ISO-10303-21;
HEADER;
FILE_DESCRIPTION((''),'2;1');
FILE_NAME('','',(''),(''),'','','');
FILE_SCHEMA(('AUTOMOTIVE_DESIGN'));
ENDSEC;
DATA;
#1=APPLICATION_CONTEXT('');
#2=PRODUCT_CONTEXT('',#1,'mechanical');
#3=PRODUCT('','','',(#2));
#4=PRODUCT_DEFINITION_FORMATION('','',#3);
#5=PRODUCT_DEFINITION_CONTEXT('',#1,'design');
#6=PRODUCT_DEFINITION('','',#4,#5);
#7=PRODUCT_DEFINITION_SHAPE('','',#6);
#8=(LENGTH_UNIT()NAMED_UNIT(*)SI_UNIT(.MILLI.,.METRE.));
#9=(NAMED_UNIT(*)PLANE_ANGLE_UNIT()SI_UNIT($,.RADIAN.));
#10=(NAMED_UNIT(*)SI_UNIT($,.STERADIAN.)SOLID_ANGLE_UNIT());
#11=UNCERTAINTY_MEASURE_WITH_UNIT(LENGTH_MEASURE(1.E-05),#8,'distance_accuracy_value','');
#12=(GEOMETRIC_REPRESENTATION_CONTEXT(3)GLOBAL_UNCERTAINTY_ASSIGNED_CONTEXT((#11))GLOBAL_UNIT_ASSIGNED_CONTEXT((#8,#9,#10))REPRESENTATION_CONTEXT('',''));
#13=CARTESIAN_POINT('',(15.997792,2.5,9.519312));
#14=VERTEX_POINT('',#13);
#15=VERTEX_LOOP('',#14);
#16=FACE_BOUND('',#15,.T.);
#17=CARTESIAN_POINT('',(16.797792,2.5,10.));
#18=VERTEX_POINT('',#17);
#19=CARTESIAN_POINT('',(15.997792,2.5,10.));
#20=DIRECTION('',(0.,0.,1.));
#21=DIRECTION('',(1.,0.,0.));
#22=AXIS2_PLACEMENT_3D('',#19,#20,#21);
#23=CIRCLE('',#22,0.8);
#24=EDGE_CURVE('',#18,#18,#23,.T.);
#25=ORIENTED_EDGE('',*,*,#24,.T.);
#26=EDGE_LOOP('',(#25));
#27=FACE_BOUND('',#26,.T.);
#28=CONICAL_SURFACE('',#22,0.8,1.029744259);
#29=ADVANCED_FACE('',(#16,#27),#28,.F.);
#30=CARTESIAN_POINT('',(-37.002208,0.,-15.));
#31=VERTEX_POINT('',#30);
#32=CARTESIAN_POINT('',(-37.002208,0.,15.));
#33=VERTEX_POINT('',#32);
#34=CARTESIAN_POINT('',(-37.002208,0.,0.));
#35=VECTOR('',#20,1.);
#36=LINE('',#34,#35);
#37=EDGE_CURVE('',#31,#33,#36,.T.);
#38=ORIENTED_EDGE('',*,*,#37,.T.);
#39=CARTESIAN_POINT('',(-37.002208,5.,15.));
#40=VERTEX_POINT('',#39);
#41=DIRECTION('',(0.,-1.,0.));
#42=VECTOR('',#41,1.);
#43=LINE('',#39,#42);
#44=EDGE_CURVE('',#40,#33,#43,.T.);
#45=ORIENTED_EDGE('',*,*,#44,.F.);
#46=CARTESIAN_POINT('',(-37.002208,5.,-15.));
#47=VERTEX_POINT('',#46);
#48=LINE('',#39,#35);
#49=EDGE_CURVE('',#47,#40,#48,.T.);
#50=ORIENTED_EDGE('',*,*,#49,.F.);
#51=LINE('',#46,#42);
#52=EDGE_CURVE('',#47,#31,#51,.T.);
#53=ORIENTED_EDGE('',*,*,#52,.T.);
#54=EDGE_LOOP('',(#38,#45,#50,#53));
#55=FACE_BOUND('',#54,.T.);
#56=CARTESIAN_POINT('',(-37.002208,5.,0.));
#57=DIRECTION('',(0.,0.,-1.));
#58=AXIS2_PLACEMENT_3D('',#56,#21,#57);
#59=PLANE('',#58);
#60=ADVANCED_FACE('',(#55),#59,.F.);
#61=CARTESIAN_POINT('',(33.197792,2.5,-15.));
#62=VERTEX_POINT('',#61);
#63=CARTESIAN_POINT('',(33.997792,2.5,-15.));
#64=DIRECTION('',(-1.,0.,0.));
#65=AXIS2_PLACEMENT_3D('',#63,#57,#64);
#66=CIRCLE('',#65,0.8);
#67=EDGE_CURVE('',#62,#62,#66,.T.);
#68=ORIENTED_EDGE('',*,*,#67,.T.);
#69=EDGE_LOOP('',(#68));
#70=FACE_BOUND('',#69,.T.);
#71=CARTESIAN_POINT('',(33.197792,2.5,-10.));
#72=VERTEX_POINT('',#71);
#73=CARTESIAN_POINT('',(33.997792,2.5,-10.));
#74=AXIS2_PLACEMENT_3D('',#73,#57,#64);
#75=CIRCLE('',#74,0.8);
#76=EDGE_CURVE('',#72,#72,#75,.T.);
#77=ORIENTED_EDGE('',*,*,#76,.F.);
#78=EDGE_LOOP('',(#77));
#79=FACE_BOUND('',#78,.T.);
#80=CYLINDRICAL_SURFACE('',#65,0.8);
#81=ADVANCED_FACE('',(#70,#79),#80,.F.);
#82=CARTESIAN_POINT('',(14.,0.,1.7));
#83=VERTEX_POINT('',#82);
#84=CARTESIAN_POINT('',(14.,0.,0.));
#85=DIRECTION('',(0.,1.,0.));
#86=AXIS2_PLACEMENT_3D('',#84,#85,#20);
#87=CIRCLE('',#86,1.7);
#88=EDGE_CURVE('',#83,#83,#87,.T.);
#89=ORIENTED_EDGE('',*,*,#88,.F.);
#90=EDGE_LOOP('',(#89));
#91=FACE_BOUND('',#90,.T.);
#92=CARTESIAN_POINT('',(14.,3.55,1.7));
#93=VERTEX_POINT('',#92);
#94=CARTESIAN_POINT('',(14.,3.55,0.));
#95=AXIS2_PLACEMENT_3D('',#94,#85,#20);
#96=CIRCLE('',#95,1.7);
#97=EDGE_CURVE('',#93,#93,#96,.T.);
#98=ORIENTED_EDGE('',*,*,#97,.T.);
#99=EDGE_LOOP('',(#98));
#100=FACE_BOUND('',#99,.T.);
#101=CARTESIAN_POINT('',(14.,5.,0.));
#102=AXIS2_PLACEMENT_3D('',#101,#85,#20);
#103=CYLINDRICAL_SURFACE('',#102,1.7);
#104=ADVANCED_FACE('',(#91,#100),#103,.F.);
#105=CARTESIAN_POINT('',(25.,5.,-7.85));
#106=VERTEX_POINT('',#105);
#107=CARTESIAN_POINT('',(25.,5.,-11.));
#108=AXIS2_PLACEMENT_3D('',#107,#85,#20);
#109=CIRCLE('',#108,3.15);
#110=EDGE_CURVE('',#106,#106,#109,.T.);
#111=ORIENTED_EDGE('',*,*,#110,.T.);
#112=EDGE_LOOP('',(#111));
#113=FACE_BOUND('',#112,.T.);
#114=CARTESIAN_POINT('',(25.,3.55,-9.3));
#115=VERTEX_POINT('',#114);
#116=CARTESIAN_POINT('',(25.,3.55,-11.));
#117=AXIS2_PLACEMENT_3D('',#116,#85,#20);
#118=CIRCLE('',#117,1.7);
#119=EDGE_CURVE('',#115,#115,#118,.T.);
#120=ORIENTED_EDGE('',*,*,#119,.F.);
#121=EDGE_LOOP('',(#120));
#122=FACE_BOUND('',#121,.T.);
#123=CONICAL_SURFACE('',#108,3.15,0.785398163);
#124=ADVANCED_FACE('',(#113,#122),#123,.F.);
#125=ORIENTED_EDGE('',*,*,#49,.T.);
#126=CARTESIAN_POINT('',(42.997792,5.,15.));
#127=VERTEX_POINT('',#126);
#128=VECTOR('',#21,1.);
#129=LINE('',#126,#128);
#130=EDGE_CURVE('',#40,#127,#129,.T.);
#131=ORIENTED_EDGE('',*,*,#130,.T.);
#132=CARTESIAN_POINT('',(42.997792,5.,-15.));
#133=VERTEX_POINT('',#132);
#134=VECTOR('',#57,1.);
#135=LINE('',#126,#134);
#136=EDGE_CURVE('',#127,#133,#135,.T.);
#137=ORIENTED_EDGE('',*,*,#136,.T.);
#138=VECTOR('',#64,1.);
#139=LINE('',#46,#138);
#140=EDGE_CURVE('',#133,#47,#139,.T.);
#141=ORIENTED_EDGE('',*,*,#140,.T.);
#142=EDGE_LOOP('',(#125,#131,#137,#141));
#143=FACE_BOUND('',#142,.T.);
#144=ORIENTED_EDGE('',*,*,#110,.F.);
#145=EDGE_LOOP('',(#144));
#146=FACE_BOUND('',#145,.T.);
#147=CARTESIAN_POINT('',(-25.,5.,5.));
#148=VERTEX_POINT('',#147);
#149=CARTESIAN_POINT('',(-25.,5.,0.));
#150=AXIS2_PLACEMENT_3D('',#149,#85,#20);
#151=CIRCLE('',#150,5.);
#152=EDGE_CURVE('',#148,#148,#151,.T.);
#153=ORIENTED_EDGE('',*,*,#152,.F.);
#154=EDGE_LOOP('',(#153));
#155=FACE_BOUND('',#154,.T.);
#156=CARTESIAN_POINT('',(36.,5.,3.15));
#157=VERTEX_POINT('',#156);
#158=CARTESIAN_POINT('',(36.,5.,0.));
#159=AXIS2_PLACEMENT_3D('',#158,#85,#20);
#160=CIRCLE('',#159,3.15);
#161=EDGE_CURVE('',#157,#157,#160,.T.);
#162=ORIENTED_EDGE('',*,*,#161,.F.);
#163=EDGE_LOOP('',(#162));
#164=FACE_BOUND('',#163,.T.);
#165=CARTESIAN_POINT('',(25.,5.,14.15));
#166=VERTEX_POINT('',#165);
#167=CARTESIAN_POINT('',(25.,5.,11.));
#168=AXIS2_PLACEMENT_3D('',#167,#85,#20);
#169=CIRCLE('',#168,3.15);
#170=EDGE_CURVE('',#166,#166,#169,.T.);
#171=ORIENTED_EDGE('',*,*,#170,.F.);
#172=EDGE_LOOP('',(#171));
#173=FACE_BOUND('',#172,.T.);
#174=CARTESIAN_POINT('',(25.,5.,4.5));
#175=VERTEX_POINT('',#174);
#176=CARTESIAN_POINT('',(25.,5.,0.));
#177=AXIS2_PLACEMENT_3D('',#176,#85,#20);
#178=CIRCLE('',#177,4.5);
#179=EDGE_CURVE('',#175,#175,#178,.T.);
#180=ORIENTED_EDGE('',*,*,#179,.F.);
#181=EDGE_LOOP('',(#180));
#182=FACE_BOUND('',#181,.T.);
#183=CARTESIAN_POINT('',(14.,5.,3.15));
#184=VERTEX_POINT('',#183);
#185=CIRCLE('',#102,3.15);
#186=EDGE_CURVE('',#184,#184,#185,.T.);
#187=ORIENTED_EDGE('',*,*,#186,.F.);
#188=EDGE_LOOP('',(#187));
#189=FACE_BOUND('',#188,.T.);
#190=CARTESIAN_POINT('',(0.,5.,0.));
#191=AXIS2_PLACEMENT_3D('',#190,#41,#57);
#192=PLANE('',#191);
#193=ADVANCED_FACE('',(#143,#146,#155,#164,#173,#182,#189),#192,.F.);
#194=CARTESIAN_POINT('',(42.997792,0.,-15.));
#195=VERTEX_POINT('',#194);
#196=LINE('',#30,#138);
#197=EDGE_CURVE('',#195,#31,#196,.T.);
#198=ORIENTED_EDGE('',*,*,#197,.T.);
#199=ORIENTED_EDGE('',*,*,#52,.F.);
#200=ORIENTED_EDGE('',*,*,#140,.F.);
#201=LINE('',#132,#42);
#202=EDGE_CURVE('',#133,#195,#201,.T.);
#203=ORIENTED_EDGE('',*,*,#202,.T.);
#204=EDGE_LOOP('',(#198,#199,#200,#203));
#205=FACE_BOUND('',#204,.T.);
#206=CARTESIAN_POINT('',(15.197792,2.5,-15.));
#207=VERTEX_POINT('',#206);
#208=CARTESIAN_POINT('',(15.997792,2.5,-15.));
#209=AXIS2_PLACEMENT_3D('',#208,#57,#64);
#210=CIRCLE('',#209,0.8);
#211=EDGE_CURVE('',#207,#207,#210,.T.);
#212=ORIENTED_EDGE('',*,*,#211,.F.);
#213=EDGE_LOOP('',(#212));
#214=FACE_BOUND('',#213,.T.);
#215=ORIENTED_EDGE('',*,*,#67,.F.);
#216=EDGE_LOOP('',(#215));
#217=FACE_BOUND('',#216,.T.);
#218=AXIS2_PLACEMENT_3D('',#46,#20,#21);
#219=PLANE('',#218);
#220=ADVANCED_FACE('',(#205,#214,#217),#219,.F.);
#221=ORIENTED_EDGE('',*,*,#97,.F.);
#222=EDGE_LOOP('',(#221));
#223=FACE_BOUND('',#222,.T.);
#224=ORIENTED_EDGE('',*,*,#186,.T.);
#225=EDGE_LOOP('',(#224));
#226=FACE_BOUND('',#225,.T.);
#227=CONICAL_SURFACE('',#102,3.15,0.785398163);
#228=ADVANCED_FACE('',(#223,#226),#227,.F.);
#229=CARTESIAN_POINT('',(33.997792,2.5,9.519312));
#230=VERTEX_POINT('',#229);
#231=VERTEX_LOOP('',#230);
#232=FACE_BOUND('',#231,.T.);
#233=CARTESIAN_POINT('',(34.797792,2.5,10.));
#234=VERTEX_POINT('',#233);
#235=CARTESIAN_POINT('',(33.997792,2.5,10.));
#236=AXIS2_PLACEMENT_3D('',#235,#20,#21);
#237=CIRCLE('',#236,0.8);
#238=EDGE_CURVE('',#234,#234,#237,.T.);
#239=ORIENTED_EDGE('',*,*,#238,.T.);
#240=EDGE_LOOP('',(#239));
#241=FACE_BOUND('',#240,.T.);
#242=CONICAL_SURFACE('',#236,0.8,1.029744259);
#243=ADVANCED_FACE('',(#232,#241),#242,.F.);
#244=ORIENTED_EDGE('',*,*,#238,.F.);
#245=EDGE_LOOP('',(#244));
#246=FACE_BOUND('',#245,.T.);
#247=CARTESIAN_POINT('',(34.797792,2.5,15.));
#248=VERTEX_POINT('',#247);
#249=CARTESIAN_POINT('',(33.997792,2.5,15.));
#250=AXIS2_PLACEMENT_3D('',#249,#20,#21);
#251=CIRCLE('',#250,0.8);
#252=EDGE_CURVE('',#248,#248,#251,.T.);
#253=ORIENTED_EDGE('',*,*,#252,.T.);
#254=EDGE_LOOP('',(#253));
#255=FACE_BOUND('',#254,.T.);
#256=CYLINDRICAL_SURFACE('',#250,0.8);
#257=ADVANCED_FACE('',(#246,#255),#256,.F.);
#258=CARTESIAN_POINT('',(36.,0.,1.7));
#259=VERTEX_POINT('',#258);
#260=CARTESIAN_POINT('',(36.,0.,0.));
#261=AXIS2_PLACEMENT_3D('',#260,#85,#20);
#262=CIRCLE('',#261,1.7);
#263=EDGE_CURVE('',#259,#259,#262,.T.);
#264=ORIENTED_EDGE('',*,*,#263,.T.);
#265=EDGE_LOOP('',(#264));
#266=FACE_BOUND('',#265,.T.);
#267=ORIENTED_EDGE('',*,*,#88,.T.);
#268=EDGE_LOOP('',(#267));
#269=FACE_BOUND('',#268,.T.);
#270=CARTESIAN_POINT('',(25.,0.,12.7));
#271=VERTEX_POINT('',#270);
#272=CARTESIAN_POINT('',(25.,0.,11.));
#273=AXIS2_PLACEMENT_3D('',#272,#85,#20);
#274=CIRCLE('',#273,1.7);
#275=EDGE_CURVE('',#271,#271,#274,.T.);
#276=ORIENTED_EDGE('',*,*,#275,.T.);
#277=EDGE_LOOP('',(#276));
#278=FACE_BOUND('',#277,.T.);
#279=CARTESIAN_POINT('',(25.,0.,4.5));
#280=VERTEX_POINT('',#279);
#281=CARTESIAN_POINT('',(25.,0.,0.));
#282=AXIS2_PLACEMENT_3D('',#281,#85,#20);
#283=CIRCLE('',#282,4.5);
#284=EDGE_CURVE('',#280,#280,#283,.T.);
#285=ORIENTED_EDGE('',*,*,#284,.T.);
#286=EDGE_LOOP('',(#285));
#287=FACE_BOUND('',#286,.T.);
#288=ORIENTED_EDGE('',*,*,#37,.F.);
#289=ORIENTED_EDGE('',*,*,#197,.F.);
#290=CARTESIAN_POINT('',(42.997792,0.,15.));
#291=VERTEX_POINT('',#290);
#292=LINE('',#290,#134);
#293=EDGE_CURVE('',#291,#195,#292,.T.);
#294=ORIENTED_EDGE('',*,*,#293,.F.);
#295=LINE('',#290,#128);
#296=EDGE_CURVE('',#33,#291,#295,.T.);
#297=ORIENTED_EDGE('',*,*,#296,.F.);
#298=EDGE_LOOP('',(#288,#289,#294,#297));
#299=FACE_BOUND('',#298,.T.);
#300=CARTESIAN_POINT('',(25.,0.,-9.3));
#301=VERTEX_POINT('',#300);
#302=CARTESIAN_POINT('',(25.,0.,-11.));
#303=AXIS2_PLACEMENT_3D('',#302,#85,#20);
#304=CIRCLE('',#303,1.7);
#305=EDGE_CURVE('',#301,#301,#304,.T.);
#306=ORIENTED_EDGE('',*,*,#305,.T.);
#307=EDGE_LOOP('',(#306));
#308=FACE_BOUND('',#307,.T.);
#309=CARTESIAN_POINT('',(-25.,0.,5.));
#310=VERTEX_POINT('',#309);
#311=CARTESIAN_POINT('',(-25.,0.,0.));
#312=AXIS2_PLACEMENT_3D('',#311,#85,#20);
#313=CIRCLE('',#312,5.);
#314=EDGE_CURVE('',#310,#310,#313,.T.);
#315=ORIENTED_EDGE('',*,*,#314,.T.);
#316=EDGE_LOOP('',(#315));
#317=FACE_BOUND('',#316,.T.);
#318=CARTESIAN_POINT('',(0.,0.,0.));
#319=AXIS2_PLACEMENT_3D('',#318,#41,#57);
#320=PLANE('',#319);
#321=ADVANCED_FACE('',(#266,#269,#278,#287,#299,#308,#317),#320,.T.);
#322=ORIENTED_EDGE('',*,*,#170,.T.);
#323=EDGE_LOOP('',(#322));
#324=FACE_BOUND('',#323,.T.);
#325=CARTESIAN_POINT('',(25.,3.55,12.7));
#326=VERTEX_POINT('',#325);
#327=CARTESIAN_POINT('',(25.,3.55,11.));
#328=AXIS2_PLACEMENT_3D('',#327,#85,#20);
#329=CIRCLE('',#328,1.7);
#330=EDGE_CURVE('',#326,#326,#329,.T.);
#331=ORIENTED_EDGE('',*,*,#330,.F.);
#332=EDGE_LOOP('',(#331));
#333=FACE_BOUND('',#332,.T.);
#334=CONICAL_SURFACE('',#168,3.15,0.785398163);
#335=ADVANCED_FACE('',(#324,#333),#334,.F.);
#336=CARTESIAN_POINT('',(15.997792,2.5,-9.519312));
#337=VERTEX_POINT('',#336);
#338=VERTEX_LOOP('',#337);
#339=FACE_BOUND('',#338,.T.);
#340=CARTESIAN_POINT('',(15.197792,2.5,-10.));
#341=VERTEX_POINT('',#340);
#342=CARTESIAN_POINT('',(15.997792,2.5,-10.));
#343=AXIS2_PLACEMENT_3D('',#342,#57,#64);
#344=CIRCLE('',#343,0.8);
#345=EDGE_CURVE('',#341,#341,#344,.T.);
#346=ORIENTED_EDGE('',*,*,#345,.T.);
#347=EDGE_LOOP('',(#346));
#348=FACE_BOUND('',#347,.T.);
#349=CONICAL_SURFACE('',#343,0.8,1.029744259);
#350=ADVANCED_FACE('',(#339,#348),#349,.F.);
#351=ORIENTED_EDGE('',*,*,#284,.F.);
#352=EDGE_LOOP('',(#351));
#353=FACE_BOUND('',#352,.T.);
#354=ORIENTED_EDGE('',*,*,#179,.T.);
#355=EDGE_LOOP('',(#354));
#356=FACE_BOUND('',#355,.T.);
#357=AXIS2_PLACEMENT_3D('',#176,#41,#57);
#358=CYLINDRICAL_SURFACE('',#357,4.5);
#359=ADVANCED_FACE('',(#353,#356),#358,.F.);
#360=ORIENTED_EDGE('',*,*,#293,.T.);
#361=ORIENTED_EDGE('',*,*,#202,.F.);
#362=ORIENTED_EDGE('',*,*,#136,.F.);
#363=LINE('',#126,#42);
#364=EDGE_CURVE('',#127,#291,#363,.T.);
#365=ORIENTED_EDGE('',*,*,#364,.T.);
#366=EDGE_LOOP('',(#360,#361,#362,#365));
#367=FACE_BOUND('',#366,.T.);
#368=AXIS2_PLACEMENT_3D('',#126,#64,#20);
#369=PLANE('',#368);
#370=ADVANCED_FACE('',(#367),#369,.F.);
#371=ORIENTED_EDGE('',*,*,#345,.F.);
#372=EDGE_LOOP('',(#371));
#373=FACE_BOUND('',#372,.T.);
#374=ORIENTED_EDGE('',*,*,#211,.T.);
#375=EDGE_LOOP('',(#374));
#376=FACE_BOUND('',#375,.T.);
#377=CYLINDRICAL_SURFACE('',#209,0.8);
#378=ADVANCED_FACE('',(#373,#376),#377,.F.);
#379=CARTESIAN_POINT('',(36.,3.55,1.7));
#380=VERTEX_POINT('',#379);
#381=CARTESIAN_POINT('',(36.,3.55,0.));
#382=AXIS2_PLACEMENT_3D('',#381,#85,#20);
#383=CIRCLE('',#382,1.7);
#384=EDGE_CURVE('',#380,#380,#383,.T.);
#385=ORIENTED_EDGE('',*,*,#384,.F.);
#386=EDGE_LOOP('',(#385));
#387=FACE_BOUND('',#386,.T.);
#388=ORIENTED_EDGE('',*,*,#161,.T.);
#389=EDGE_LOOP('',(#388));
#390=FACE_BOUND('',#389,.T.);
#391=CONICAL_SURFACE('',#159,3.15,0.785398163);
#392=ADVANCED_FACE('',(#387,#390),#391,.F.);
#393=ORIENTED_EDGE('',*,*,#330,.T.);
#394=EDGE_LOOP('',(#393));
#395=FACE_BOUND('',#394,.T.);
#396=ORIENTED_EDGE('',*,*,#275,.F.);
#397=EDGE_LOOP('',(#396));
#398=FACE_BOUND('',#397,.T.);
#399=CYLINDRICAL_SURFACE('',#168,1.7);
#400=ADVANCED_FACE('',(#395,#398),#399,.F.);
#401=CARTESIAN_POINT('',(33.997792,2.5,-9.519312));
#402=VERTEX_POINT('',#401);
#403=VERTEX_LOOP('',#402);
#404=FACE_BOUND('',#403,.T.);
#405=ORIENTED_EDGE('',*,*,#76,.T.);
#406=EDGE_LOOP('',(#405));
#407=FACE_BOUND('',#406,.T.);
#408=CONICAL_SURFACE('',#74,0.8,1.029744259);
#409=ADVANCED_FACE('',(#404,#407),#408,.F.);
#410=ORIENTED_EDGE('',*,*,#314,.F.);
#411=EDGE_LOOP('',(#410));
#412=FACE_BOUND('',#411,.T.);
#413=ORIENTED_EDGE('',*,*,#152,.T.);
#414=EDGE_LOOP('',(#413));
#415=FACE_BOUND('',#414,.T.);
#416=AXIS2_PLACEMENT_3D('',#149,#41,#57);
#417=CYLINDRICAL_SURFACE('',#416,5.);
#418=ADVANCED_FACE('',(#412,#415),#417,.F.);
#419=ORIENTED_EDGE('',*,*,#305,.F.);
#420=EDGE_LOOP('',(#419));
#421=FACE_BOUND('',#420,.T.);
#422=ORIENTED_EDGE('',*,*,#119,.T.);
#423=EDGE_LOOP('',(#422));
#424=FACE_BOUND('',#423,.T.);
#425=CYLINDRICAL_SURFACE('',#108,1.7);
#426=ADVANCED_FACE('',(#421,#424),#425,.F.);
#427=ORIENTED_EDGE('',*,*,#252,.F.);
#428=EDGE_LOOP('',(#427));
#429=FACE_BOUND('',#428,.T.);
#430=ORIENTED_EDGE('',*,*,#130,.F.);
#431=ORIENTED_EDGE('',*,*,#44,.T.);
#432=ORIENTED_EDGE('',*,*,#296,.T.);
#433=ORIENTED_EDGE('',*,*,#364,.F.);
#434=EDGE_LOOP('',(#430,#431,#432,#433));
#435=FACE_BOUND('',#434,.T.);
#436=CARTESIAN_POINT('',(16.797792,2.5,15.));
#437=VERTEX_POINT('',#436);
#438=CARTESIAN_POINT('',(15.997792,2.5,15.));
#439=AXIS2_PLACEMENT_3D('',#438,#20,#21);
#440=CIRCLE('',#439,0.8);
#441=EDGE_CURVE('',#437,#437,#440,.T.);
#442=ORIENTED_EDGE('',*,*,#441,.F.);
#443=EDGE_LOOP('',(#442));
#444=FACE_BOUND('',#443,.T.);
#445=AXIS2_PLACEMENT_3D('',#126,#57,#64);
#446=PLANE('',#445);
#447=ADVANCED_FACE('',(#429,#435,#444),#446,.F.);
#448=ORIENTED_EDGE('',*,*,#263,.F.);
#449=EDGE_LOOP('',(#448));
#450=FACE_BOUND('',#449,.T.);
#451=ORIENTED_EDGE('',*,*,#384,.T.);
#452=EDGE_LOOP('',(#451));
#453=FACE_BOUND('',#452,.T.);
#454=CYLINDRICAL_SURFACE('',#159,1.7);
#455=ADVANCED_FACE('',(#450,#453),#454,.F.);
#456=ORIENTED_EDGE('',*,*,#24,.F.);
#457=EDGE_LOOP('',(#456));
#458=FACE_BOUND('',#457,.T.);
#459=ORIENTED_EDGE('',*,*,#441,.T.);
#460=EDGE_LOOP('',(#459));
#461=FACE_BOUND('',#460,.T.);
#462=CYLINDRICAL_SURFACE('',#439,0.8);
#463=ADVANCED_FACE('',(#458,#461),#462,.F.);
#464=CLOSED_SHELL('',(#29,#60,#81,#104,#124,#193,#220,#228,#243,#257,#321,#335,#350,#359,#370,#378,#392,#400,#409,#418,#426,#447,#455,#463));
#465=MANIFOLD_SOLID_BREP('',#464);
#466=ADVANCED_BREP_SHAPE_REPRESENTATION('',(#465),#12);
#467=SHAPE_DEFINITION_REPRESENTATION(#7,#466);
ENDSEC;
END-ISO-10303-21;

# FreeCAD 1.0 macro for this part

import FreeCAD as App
import Part
import Sketcher
Q = App.Units.Quantity


def add_polygon(sketch, points):
    """Adds a closed chain of lines whose ends are joined by coincident constraints."""
    first, n = sketch.GeometryCount, len(points)
    for a, b in zip(points, points[1:] + points[:1]):
        sketch.addGeometry(Part.LineSegment(App.Vector(*a, 0), App.Vector(*b, 0)), False)
    for i in range(n):
        sketch.addConstraint(Sketcher.Constraint("Coincident", first + i, 2, first + (i + 1) % n, 1))

doc = App.newDocument("Part")
body = doc.addObject("PartDesign::Body", "Body")

# Sketch on XZ plane
sketch1 = body.newObject("Sketcher::SketchObject", "Sketch")
sketch1.AttachmentSupport = (doc.getObject("XZ_Plane"), [""])
sketch1.MapMode = "FlatFace"
add_polygon(sketch1, [(-37.002208, -15), (-37.002208, 15), (42.997792, 15), (42.997792, -15)])  # lines 0-3
sketch1.addGeometry(Part.Circle(App.Vector(25, 0, 0), App.Vector(0, 0, 1), 4.5), False)  # 4
sketch1.addGeometry(Part.Circle(App.Vector(-25, 0, 0), App.Vector(0, 0, 1), 5), False)  # 5
sketch1.addConstraint([
    Sketcher.Constraint("Vertical", 0),
    Sketcher.Constraint("Horizontal", 1),
    Sketcher.Constraint("Vertical", 2),
    Sketcher.Constraint("Horizontal", 3),
    Sketcher.Constraint("Symmetric", 4, 3, 5, 3, -1, 1),
    Sketcher.Constraint("PointOnObject", 4, 3, -1),
    Sketcher.Constraint("Diameter", 4, Q("9 mm")),
    Sketcher.Constraint("Diameter", 5, Q("10 mm")),
    Sketcher.Constraint("DistanceX", 1, 1, 1, 2, Q("80 mm")),
    Sketcher.Constraint("DistanceY", 0, 1, 0, 2, Q("30 mm")),
    Sketcher.Constraint("DistanceX", -1, 1, 4, 3, Q("25 mm")),
    Sketcher.Constraint("DistanceY", -1, 1, 0, 2, Q("15 mm")),
    Sketcher.Constraint("DistanceX", 0, 2, -1, 1, Q("37.002208 mm")),
])
pad1 = body.newObject("PartDesign::Pad", "Pad")
pad1.Profile = sketch1
pad1.Length = 5
pad1.Reversed = True

# Sketch on XZ plane
sketch2 = body.newObject("Sketcher::SketchObject", "Sketch001")
sketch2.AttachmentSupport = (doc.getObject("XZ_Plane"), [""])
sketch2.MapMode = "FlatFace"
sketch2.AttachmentOffset = App.Placement(App.Vector(0, 0, -5), App.Rotation())
sketch2.addGeometry(Part.Circle(App.Vector(14, 0, 0), App.Vector(0, 0, 1), 1.7), False)
sketch2.addConstraint([
    Sketcher.Constraint("PointOnObject", 0, 3, -1),
    Sketcher.Constraint("Diameter", 0, Q("3.4 mm")),
    Sketcher.Constraint("DistanceX", -1, 1, 0, 3, Q("14 mm")),
])
doc.recompute()
hole = body.newObject("PartDesign::Hole", "Hole")
hole.Profile = sketch2
hole.ThreadType = "None"
hole.Diameter = 3.4
hole.DepthType = "ThroughAll"
hole.HoleCutType = "Countersink"
hole.HoleCutDiameter = 6.3
hole.HoleCutCountersinkAngle = 90
hole.Reversed = True
doc.recompute()

datumline = body.newObject("PartDesign::Line", "DatumLine")
datumline.Placement = App.Placement(App.Vector(25, 0, 0), App.Rotation(App.Vector(0, 0, 1), App.Vector(0, 1, 0)))
polarpattern = body.newObject("PartDesign::PolarPattern", "PolarPattern")
polarpattern.Originals = [hole]
polarpattern.Axis = (datumline, [""])
polarpattern.Angle = 360
polarpattern.Occurrences = 4
body.Tip = polarpattern

# Sketch on XY plane
sketch3 = body.newObject("Sketcher::SketchObject", "Sketch002")
sketch3.AttachmentSupport = (doc.getObject("XY_Plane"), [""])
sketch3.MapMode = "FlatFace"
sketch3.AttachmentOffset = App.Placement(App.Vector(0, 0, 15), App.Rotation())
sketch3.addGeometry([
    Part.Circle(App.Vector(15.997792, 2.5, 0), App.Vector(0, 0, 1), 0.8),
    Part.Circle(App.Vector(33.997792, 2.5, 0), App.Vector(0, 0, 1), 0.8),
], False)
sketch3.addConstraint([
    Sketcher.Constraint("Equal", 0, 1),
    Sketcher.Constraint("Horizontal", 0, 3, 1, 3),
    Sketcher.Constraint("Diameter", 0, Q("1.6 mm")),
    Sketcher.Constraint("DistanceX", 0, 3, 1, 3, Q("18 mm")),
    Sketcher.Constraint("DistanceY", -1, 1, 0, 3, Q("2.5 mm")),
    Sketcher.Constraint("DistanceX", -1, 1, 0, 3, Q("15.997792 mm")),
])
doc.recompute()
hole2 = body.newObject("PartDesign::Hole", "Hole001")
hole2.Profile = sketch3
hole2.ThreadType = "None"
hole2.Diameter = 1.6
hole2.DepthType = "Dimension"
hole2.Depth = 5
hole2.DrillPoint = "Angled"
hole2.DrillPointAngle = 118

# Sketch on XY plane
sketch4 = body.newObject("Sketcher::SketchObject", "Sketch003")
sketch4.AttachmentSupport = (doc.getObject("XY_Plane"), [""])
sketch4.MapMode = "FlatFace"
sketch4.AttachmentOffset = App.Placement(App.Vector(0, 0, -15), App.Rotation())
sketch4.addGeometry([
    Part.Circle(App.Vector(33.997792, 2.5, 0), App.Vector(0, 0, 1), 0.8),
    Part.Circle(App.Vector(15.997792, 2.5, 0), App.Vector(0, 0, 1), 0.8),
], False)
sketch4.addConstraint([
    Sketcher.Constraint("Equal", 0, 1),
    Sketcher.Constraint("Horizontal", 0, 3, 1, 3),
    Sketcher.Constraint("Diameter", 0, Q("1.6 mm")),
    Sketcher.Constraint("DistanceX", 1, 3, 0, 3, Q("18 mm")),
    Sketcher.Constraint("DistanceY", -1, 1, 0, 3, Q("2.5 mm")),
    Sketcher.Constraint("DistanceX", -1, 1, 0, 3, Q("33.997792 mm")),
])
doc.recompute()
hole3 = body.newObject("PartDesign::Hole", "Hole002")
hole3.Profile = sketch4
hole3.ThreadType = "None"
hole3.Diameter = 1.6
hole3.DepthType = "Dimension"
hole3.Depth = 5
hole3.DrillPoint = "Angled"
hole3.DrillPointAngle = 118
hole3.Reversed = True

doc.recompute()
